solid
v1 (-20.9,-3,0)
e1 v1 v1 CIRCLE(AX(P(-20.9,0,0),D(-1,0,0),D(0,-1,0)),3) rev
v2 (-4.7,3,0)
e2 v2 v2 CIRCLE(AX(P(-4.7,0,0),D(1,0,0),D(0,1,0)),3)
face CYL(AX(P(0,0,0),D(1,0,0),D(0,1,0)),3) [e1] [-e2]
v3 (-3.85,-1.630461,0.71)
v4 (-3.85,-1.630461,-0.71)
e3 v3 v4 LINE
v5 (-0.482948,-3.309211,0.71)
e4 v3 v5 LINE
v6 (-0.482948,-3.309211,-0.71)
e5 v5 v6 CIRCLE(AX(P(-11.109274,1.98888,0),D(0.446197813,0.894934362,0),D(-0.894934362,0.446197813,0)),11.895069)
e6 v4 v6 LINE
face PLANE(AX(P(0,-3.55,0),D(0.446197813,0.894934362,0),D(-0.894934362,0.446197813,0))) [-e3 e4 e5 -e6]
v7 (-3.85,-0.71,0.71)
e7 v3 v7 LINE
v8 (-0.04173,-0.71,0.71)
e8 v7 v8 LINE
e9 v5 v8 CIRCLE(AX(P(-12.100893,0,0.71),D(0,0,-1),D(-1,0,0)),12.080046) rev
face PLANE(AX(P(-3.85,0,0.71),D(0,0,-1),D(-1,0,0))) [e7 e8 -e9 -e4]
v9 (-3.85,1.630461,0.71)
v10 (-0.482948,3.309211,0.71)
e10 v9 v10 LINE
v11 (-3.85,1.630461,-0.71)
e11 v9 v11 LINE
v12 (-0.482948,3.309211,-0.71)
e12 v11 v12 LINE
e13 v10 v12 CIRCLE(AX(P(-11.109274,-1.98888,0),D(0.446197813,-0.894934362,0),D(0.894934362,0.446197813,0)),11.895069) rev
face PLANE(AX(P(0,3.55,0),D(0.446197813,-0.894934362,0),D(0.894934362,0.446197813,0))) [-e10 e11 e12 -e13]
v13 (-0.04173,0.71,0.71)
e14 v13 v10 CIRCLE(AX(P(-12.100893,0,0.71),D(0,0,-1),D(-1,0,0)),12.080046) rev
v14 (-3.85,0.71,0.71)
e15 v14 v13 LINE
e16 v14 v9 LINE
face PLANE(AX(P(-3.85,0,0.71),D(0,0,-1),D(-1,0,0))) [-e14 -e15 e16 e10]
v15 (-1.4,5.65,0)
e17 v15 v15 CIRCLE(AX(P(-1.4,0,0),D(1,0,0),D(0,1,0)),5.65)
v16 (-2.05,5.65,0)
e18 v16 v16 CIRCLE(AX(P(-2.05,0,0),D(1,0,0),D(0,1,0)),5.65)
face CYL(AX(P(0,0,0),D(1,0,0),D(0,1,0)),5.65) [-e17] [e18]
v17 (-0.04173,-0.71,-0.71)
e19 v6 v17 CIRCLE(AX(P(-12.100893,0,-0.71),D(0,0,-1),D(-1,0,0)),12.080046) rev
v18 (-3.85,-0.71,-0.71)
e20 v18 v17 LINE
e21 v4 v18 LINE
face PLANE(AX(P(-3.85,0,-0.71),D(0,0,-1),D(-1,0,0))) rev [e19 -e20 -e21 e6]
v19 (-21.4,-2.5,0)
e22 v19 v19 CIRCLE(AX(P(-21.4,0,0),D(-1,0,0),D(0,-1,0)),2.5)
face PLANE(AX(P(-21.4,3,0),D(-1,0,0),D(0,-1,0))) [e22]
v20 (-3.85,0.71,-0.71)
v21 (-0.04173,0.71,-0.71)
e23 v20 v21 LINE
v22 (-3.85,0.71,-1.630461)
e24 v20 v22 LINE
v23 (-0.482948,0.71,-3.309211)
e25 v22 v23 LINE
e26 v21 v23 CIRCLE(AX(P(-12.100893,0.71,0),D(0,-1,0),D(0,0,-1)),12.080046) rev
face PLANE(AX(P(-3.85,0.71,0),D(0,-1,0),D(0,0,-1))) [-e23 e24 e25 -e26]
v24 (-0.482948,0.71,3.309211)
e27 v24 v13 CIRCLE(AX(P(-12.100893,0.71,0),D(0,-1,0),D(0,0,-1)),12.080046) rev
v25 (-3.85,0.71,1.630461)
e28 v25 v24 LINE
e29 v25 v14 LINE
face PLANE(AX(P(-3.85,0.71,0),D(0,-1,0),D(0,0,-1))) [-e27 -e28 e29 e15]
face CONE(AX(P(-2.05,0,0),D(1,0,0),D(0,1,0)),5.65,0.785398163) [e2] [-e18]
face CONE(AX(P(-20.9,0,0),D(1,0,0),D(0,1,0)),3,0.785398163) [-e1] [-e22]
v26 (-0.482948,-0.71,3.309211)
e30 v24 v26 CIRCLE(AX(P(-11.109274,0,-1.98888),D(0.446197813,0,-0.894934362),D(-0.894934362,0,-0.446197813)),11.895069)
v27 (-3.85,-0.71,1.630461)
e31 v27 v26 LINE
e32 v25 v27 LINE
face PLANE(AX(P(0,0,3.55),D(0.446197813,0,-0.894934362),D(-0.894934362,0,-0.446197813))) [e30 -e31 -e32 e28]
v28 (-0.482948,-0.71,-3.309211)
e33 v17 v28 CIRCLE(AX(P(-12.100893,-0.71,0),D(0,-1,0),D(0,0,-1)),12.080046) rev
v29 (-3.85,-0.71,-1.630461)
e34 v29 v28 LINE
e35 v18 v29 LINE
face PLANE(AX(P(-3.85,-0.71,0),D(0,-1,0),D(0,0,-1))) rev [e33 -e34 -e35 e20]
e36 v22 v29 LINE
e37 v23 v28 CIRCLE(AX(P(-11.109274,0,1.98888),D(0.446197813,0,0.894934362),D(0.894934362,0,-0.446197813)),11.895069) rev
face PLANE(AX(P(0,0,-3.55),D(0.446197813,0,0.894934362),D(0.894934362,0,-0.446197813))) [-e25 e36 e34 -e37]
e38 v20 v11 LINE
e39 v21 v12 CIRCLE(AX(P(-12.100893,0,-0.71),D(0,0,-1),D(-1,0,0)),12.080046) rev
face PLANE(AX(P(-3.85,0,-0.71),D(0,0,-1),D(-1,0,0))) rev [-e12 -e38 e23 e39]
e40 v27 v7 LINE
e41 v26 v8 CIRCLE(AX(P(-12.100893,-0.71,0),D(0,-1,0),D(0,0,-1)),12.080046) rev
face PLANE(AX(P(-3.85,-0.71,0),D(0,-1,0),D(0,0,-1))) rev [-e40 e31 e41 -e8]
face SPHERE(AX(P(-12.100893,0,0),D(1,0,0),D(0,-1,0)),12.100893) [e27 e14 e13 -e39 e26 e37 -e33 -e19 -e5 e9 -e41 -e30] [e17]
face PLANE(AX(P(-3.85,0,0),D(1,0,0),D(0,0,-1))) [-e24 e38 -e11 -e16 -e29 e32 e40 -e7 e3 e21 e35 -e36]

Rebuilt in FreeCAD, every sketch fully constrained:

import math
import FreeCAD as App
import Part
import Sketcher
Q = App.Units.Quantity


def edges_at(feature, points):
    """Names of the edges that pass closest to the given points."""
    edges = feature.Shape.Edges
    near = lambda p: min(range(len(edges)), key=lambda i: edges[i].distToShape(Part.Vertex(*p))[0])
    return sorted({f"Edge{near(p) + 1}" for p in points})


def faces_at(feature, points):
    """Names of the faces that lie closest to the given points."""
    faces = feature.Shape.Faces
    near = lambda p: min(range(len(faces)), key=lambda i: faces[i].distToShape(Part.Vertex(*p))[0])
    return sorted({f"Face{near(p) + 1}" for p in points})

doc = App.newDocument("Part")
body = doc.addObject("PartDesign::Body", "Body")

# Sketch on XY plane
sketch1 = body.newObject("Sketcher::SketchObject", "Sketch")
sketch1.AttachmentSupport = (doc.getObject("XY_Plane"), [""])
sketch1.MapMode = "FlatFace"
sketch1.addGeometry(Part.LineSegment(App.Vector(-1.4, 5.65, 0), App.Vector(-2.05, 5.65, 0)), False)
sketch1.addGeometry(Part.LineSegment(App.Vector(-2.05, 5.65, 0), App.Vector(-4.7, 3, 0)), False)
sketch1.addGeometry(Part.LineSegment(App.Vector(-4.7, 3, 0), App.Vector(-21.4, 3, 0)), False)
sketch1.addGeometry(Part.LineSegment(App.Vector(-21.4, 3, 0), App.Vector(-21.4, 0, 0)), False)
sketch1.addGeometry(Part.LineSegment(App.Vector(-21.4, 0, 0), App.Vector(0, 0, 0)), False)
sketch1.addGeometry(Part.ArcOfCircle(Part.Circle(App.Vector(-12.100893, 0, 0), App.Vector(0, 0, 1), 12.100893), math.radians(0), math.radians(27.833755)), False)
sketch1.addConstraint(Sketcher.Constraint("Coincident", 0, 2, 1, 1))
sketch1.addConstraint(Sketcher.Constraint("Coincident", 1, 2, 2, 1))
sketch1.addConstraint(Sketcher.Constraint("Coincident", 2, 2, 3, 1))
sketch1.addConstraint(Sketcher.Constraint("Coincident", 3, 2, 4, 1))
sketch1.addConstraint(Sketcher.Constraint("Coincident", 4, 2, 5, 1))
sketch1.addConstraint(Sketcher.Constraint("Coincident", 5, 2, 0, 1))
sketch1.addConstraint(Sketcher.Constraint("Horizontal", 0))
sketch1.addConstraint(Sketcher.Constraint("Horizontal", 2))
sketch1.addConstraint(Sketcher.Constraint("Vertical", 3))
sketch1.addConstraint(Sketcher.Constraint("Horizontal", 4))
sketch1.addConstraint(Sketcher.Constraint("Coincident", 4, 2, -1, 1))
sketch1.addConstraint(Sketcher.Constraint("PointOnObject", 5, 3, -1))
sketch1.addConstraint(Sketcher.Constraint("DistanceY", 3, 2, 3, 1, 3.0))
sketch1.addConstraint(Sketcher.Constraint("Angle", 1, Q("-135 deg")))
sketch1.addConstraint(Sketcher.Constraint("DistanceX", 2, 2, 2, 1, 16.7))
sketch1.addConstraint(Sketcher.Constraint("DistanceX", 4, 1, 4, 2, 21.4))
sketch1.addConstraint(Sketcher.Constraint("DistanceX", 2, 2, 5, 2, 20.0))
sketch1.addConstraint(Sketcher.Constraint("DistanceX", 0, 2, 0, 1, 0.65))
revolution = body.newObject("PartDesign::Revolution", "Revolution")
revolution.Profile = sketch1
revolution.ReferenceAxis = (sketch1, ["H_Axis"])
revolution.Angle = 360

# Sketch on YZ plane
sketch2 = body.newObject("Sketcher::SketchObject", "Sketch001")
sketch2.AttachmentSupport = (doc.getObject("YZ_Plane"), [""])
sketch2.MapMode = "FlatFace"
sketch2.addGeometry(Part.LineSegment(App.Vector(3.55, 0.71, 0), App.Vector(0.71, 0.71, 0)), False)
sketch2.addGeometry(Part.LineSegment(App.Vector(0.71, 0.71, 0), App.Vector(0.71, 3.55, 0)), False)
sketch2.addGeometry(Part.LineSegment(App.Vector(0.71, 3.55, 0), App.Vector(-0.71, 3.55, 0)), False)
sketch2.addGeometry(Part.LineSegment(App.Vector(-0.71, 3.55, 0), App.Vector(-0.71, 0.71, 0)), False)
sketch2.addGeometry(Part.LineSegment(App.Vector(-0.71, 0.71, 0), App.Vector(-3.55, 0.71, 0)), False)
sketch2.addGeometry(Part.LineSegment(App.Vector(-3.55, 0.71, 0), App.Vector(-3.55, -0.71, 0)), False)
sketch2.addGeometry(Part.LineSegment(App.Vector(-3.55, -0.71, 0), App.Vector(-0.71, -0.71, 0)), False)
sketch2.addGeometry(Part.LineSegment(App.Vector(-0.71, -0.71, 0), App.Vector(-0.71, -3.55, 0)), False)
sketch2.addGeometry(Part.LineSegment(App.Vector(-0.71, -3.55, 0), App.Vector(0.71, -3.55, 0)), False)
sketch2.addGeometry(Part.LineSegment(App.Vector(0.71, -3.55, 0), App.Vector(0.71, -0.71, 0)), False)
sketch2.addGeometry(Part.LineSegment(App.Vector(0.71, -0.71, 0), App.Vector(3.55, -0.71, 0)), False)
sketch2.addGeometry(Part.LineSegment(App.Vector(3.55, -0.71, 0), App.Vector(3.55, 0.71, 0)), False)
sketch2.addConstraint(Sketcher.Constraint("Coincident", 0, 2, 1, 1))
sketch2.addConstraint(Sketcher.Constraint("Coincident", 1, 2, 2, 1))
sketch2.addConstraint(Sketcher.Constraint("Coincident", 2, 2, 3, 1))
sketch2.addConstraint(Sketcher.Constraint("Coincident", 3, 2, 4, 1))
sketch2.addConstraint(Sketcher.Constraint("Coincident", 4, 2, 5, 1))
sketch2.addConstraint(Sketcher.Constraint("Coincident", 5, 2, 6, 1))
sketch2.addConstraint(Sketcher.Constraint("Coincident", 6, 2, 7, 1))
sketch2.addConstraint(Sketcher.Constraint("Coincident", 7, 2, 8, 1))
sketch2.addConstraint(Sketcher.Constraint("Coincident", 8, 2, 9, 1))
sketch2.addConstraint(Sketcher.Constraint("Coincident", 9, 2, 10, 1))
sketch2.addConstraint(Sketcher.Constraint("Coincident", 10, 2, 11, 1))
sketch2.addConstraint(Sketcher.Constraint("Coincident", 11, 2, 0, 1))
sketch2.addConstraint(Sketcher.Constraint("Horizontal", 0))
sketch2.addConstraint(Sketcher.Constraint("Vertical", 1))
sketch2.addConstraint(Sketcher.Constraint("Horizontal", 2))
sketch2.addConstraint(Sketcher.Constraint("Vertical", 3))
sketch2.addConstraint(Sketcher.Constraint("Horizontal", 4))
sketch2.addConstraint(Sketcher.Constraint("Vertical", 5))
sketch2.addConstraint(Sketcher.Constraint("Horizontal", 6))
sketch2.addConstraint(Sketcher.Constraint("Vertical", 7))
sketch2.addConstraint(Sketcher.Constraint("Horizontal", 8))
sketch2.addConstraint(Sketcher.Constraint("Vertical", 9))
sketch2.addConstraint(Sketcher.Constraint("Horizontal", 10))
sketch2.addConstraint(Sketcher.Constraint("Vertical", 11))
sketch2.addConstraint(Sketcher.Constraint("Symmetric", 0, 2, 6, 2, -1, 1))
sketch2.addConstraint(Sketcher.Constraint("Symmetric", 2, 2, 8, 2, -1, 1))
sketch2.addConstraint(Sketcher.Constraint("Symmetric", 4, 2, 10, 2, -1, 1))
sketch2.addConstraint(Sketcher.Constraint("Symmetric", 0, 2, 3, 2, -2))
sketch2.addConstraint(Sketcher.Constraint("Equal", 10, 1))
sketch2.addConstraint(Sketcher.Constraint("Equal", 8, 5))
sketch2.addConstraint(Sketcher.Constraint("DistanceX", 0, 2, 0, 1, 2.84))
sketch2.addConstraint(Sketcher.Constraint("DistanceX", 2, 2, 2, 1, 1.42))
pocket1 = body.newObject("PartDesign::Pocket", "Pocket")
pocket1.Profile = sketch2
pocket1.Length = 3.85
doc.recompute()

draft = body.newObject("PartDesign::Draft", "Draft")
draft.Base = (pocket1, faces_at(pocket1, [
    (-2.191, -3.55, 0),
    (-2.191, 0, 3.55),
    (-2.191, 0, -3.55),
    (-2.191, 3.55, 0),
]))
draft.NeutralPlane = (doc.getObject("YZ_Plane"), [""])
draft.Angle = 26.5
draft.Reversed = False
doc.recompute()

chamfer = body.newObject("PartDesign::Chamfer", "Chamfer")
chamfer.Base = (draft, edges_at(draft, [(-21.4, -3, 0)]))
chamfer.Size = 0.5

doc.recompute()
